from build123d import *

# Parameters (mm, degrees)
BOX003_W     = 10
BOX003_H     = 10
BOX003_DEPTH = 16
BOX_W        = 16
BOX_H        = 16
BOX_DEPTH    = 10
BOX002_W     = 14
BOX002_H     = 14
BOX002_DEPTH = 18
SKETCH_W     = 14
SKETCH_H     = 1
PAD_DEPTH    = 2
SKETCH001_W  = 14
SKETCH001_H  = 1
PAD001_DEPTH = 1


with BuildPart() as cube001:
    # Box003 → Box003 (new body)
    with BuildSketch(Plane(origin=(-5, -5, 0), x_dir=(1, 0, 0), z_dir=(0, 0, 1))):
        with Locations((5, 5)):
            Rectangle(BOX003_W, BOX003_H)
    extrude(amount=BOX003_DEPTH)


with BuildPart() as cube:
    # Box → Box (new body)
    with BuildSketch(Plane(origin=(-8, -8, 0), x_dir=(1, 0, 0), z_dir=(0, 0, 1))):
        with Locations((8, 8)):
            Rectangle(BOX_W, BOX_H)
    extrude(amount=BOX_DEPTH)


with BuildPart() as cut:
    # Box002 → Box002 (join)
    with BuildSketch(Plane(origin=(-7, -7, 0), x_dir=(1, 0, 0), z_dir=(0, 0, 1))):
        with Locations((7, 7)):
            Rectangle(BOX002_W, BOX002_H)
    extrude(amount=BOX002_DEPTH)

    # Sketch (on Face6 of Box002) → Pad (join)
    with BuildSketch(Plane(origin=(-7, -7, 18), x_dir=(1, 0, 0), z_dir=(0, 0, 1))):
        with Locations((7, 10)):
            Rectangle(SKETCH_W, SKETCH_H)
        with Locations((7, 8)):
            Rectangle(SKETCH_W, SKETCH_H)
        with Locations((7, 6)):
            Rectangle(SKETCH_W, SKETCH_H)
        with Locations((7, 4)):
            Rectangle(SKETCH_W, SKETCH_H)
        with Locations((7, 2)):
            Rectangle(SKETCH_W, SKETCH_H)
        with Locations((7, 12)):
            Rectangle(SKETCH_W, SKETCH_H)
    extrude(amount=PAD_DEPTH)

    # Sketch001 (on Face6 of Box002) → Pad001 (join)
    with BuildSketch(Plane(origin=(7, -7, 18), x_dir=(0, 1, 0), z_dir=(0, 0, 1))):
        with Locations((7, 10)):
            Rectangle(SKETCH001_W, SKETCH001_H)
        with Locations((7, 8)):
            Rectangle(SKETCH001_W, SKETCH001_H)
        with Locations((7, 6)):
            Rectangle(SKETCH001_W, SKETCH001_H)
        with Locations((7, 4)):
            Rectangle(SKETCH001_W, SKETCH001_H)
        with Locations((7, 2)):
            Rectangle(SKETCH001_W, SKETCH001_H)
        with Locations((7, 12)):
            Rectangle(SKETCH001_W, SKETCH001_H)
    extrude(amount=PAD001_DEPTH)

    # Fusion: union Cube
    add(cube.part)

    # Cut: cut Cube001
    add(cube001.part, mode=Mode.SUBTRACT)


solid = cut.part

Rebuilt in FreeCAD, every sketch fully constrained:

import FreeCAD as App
import Part
import Sketcher

V = App.Vector


def add_polygon(sketch, points):
    """Adds a closed chain of lines whose ends are joined by coincident constraints."""
    first, n = sketch.GeometryCount, len(points)
    for a, b in zip(points, points[1:] + points[:1]):
        sketch.addGeometry(Part.LineSegment(App.Vector(*a, 0), App.Vector(*b, 0)), False)
    for i in range(n):
        sketch.addConstraint(Sketcher.Constraint("Coincident", first + i, 2, first + (i + 1) % n, 1))

doc = App.newDocument("Part")
params = doc.addObject("Spreadsheet::Sheet", "Params")
for row, (alias, value) in enumerate([
    ("sketch1_width", "10 mm"),
    ("pad1_length", "16 mm"),
    ("sketch2_width", "16 mm"),
    ("pad2_length", "10 mm"),
    ("sketch3_width", "14 mm"),
    ("pad3_length", "18 mm"),
    ("sketch4_width", "14 mm"),
    ("sketch4_height", "1 mm"),
    ("pad4_length", "2 mm"),
    ("sketch5_width", "1 mm"),
    ("sketch5_height", "14 mm"),
    ("pad5_length", "1 mm"),
], start=1):
    params.set(f"A{row}", alias)
    params.set(f"B{row}", "=" + value)
    params.setAlias(f"B{row}", alias)

body = doc.addObject("PartDesign::Body", "Body")

# Sketch on XY plane
sketch1 = body.newObject("Sketcher::SketchObject", "Sketch")
sketch1.AttachmentSupport = (doc.getObject("XY_Plane"), [""])
sketch1.MapMode = "FlatFace"
add_polygon(sketch1, [(-5, 5), (-5, -5), (5, -5), (5, 5)])  # lines 0-3
sketch1.addConstraint(Sketcher.Constraint("Vertical", 0))
sketch1.addConstraint(Sketcher.Constraint("Horizontal", 1))
sketch1.addConstraint(Sketcher.Constraint("Vertical", 2))
sketch1.addConstraint(Sketcher.Constraint("Horizontal", 3))
sketch1.addConstraint(Sketcher.Constraint("Symmetric", 0, 2, 2, 2, -1, 1))
sketch1.addConstraint(Sketcher.Constraint("Equal", 3, 0))
sketch1.addConstraint(Sketcher.Constraint("DistanceX", 1, 1, 1, 2, 10.0))
sketch1.setExpression("Constraints[10]", "Params.sketch1_width")
pad1 = body.newObject("PartDesign::Pad", "Pad")
pad1.Profile = sketch1
pad1.setExpression("Length", "Params.pad1_length")
body2 = doc.addObject("PartDesign::Body", "Body001")

# Sketch on XY plane
sketch2 = body2.newObject("Sketcher::SketchObject", "Sketch001")
sketch2.AttachmentSupport = (doc.getObject("XY_Plane001"), [""])
sketch2.MapMode = "FlatFace"
add_polygon(sketch2, [(-8, 8), (-8, -8), (8, -8), (8, 8)])  # lines 0-3
sketch2.addConstraint(Sketcher.Constraint("Vertical", 0))
sketch2.addConstraint(Sketcher.Constraint("Horizontal", 1))
sketch2.addConstraint(Sketcher.Constraint("Vertical", 2))
sketch2.addConstraint(Sketcher.Constraint("Horizontal", 3))
sketch2.addConstraint(Sketcher.Constraint("Symmetric", 0, 2, 2, 2, -1, 1))
sketch2.addConstraint(Sketcher.Constraint("Equal", 3, 0))
sketch2.addConstraint(Sketcher.Constraint("DistanceX", 1, 1, 1, 2, 16.0))
sketch2.setExpression("Constraints[10]", "Params.sketch2_width")
pad2 = body2.newObject("PartDesign::Pad", "Pad001")
pad2.Profile = sketch2
pad2.setExpression("Length", "Params.pad2_length")
body3 = doc.addObject("PartDesign::Body", "Body002")

# Sketch on XY plane
sketch3 = body3.newObject("Sketcher::SketchObject", "Sketch002")
sketch3.AttachmentSupport = (doc.getObject("XY_Plane002"), [""])
sketch3.MapMode = "FlatFace"
add_polygon(sketch3, [(-7, 7), (-7, -7), (7, -7), (7, 7)])  # lines 0-3
sketch3.addConstraint(Sketcher.Constraint("Vertical", 0))
sketch3.addConstraint(Sketcher.Constraint("Horizontal", 1))
sketch3.addConstraint(Sketcher.Constraint("Vertical", 2))
sketch3.addConstraint(Sketcher.Constraint("Horizontal", 3))
sketch3.addConstraint(Sketcher.Constraint("Symmetric", 0, 2, 2, 2, -1, 1))
sketch3.addConstraint(Sketcher.Constraint("Equal", 3, 0))
sketch3.addConstraint(Sketcher.Constraint("DistanceX", 1, 1, 1, 2, 14.0))
sketch3.setExpression("Constraints[10]", "Params.sketch3_width")
pad3 = body3.newObject("PartDesign::Pad", "Pad002")
pad3.Profile = sketch3
pad3.setExpression("Length", "Params.pad3_length")

# Sketch on XY plane
sketch4 = body3.newObject("Sketcher::SketchObject", "Sketch003")
sketch4.AttachmentSupport = (doc.getObject("XY_Plane002"), [""])
sketch4.MapMode = "FlatFace"
sketch4.AttachmentOffset = App.Placement(V(0, 0, 18), App.Rotation())
add_polygon(sketch4, [(-7, 3.5), (-7, 2.5), (7, 2.5), (7, 3.5)])  # lines 0-3
add_polygon(sketch4, [(-7, 1.5), (-7, 0.5), (7, 0.5), (7, 1.5)])  # lines 4-7
add_polygon(sketch4, [(-7, -0.5), (-7, -1.5), (7, -1.5), (7, -0.5)])  # lines 8-11
add_polygon(sketch4, [(-7, -2.5), (-7, -3.5), (7, -3.5), (7, -2.5)])  # lines 12-15
add_polygon(sketch4, [(-7, -4.5), (-7, -5.5), (7, -5.5), (7, -4.5)])  # lines 16-19
add_polygon(sketch4, [(-7, 5.5), (-7, 4.5), (7, 4.5), (7, 5.5)])  # lines 20-23
sketch4.addConstraint(Sketcher.Constraint("Vertical", 0))
sketch4.addConstraint(Sketcher.Constraint("Horizontal", 1))
sketch4.addConstraint(Sketcher.Constraint("Vertical", 2))
sketch4.addConstraint(Sketcher.Constraint("Horizontal", 3))
sketch4.addConstraint(Sketcher.Constraint("Vertical", 4))
sketch4.addConstraint(Sketcher.Constraint("Horizontal", 5))
sketch4.addConstraint(Sketcher.Constraint("Vertical", 6))
sketch4.addConstraint(Sketcher.Constraint("Horizontal", 7))
sketch4.addConstraint(Sketcher.Constraint("Vertical", 8))
sketch4.addConstraint(Sketcher.Constraint("Horizontal", 9))
sketch4.addConstraint(Sketcher.Constraint("Vertical", 10))
sketch4.addConstraint(Sketcher.Constraint("Horizontal", 11))
sketch4.addConstraint(Sketcher.Constraint("Vertical", 12))
sketch4.addConstraint(Sketcher.Constraint("Horizontal", 13))
sketch4.addConstraint(Sketcher.Constraint("Vertical", 14))
sketch4.addConstraint(Sketcher.Constraint("Horizontal", 15))
sketch4.addConstraint(Sketcher.Constraint("Vertical", 16))
sketch4.addConstraint(Sketcher.Constraint("Horizontal", 17))
sketch4.addConstraint(Sketcher.Constraint("Vertical", 18))
sketch4.addConstraint(Sketcher.Constraint("Horizontal", 19))
sketch4.addConstraint(Sketcher.Constraint("Vertical", 20))
sketch4.addConstraint(Sketcher.Constraint("Horizontal", 21))
sketch4.addConstraint(Sketcher.Constraint("Vertical", 22))
sketch4.addConstraint(Sketcher.Constraint("Horizontal", 23))
sketch4.addConstraint(Sketcher.Constraint("Symmetric", 6, 2, 8, 2, -1, 1))
sketch4.addConstraint(Sketcher.Constraint("Symmetric", 4, 2, 10, 2, -1, 1))
sketch4.addConstraint(Sketcher.Constraint("Symmetric", 2, 2, 12, 2, -1, 1))
sketch4.addConstraint(Sketcher.Constraint("Symmetric", 0, 2, 14, 2, -1, 1))
sketch4.addConstraint(Sketcher.Constraint("Symmetric", 18, 2, 20, 2, -1, 1))
sketch4.addConstraint(Sketcher.Constraint("Symmetric", 16, 2, 22, 2, -1, 1))
sketch4.addConstraint(Sketcher.Constraint("Vertical", 3, 2, 4, 2))
sketch4.addConstraint(Sketcher.Constraint("Vertical", 2, 2, 5, 2))
sketch4.addConstraint(Sketcher.Constraint("Vertical", 7, 2, 8, 2))
sketch4.addConstraint(Sketcher.Constraint("Vertical", 15, 2, 16, 2))
sketch4.addConstraint(Sketcher.Constraint("Vertical", 14, 2, 17, 2))
sketch4.addConstraint(Sketcher.Constraint("Equal", 2, 4))
sketch4.addConstraint(Sketcher.Constraint("Equal", 14, 16))
sketch4.addConstraint(Sketcher.Constraint("DistanceX", 1, 1, 1, 2, 14.0))
sketch4.addConstraint(Sketcher.Constraint("DistanceY", 0, 2, 0, 1, 1.0))
sketch4.addConstraint(Sketcher.Constraint("DistanceY", 4, 2, 0, 2, 2.0))
sketch4.addConstraint(Sketcher.Constraint("DistanceY", 8, 2, 4, 2, 2.0))
sketch4.addConstraint(Sketcher.Constraint("DistanceY", 16, 2, 12, 2, 2.0))
sketch4.setExpression("Constraints[61]", "Params.sketch4_width")
sketch4.setExpression("Constraints[62]", "Params.sketch4_height")
pad4 = body3.newObject("PartDesign::Pad", "Pad003")
pad4.Profile = sketch4
pad4.setExpression("Length", "Params.pad4_length")

# Sketch on XY plane
sketch5 = body3.newObject("Sketcher::SketchObject", "Sketch004")
sketch5.AttachmentSupport = (doc.getObject("XY_Plane002"), [""])
sketch5.MapMode = "FlatFace"
sketch5.AttachmentOffset = App.Placement(V(0, 0, 18), App.Rotation())
add_polygon(sketch5, [(-3.5, -7), (-2.5, -7), (-2.5, 7), (-3.5, 7)])  # lines 0-3
add_polygon(sketch5, [(-1.5, -7), (-0.5, -7), (-0.5, 7), (-1.5, 7)])  # lines 4-7
add_polygon(sketch5, [(0.5, -7), (1.5, -7), (1.5, 7), (0.5, 7)])  # lines 8-11
add_polygon(sketch5, [(2.5, -7), (3.5, -7), (3.5, 7), (2.5, 7)])  # lines 12-15
add_polygon(sketch5, [(4.5, -7), (5.5, -7), (5.5, 7), (4.5, 7)])  # lines 16-19
add_polygon(sketch5, [(-5.5, -7), (-4.5, -7), (-4.5, 7), (-5.5, 7)])  # lines 20-23
sketch5.addConstraint(Sketcher.Constraint("Horizontal", 0))
sketch5.addConstraint(Sketcher.Constraint("Vertical", 1))
sketch5.addConstraint(Sketcher.Constraint("Horizontal", 2))
sketch5.addConstraint(Sketcher.Constraint("Vertical", 3))
sketch5.addConstraint(Sketcher.Constraint("Horizontal", 4))
sketch5.addConstraint(Sketcher.Constraint("Vertical", 5))
sketch5.addConstraint(Sketcher.Constraint("Horizontal", 6))
sketch5.addConstraint(Sketcher.Constraint("Vertical", 7))
sketch5.addConstraint(Sketcher.Constraint("Horizontal", 8))
sketch5.addConstraint(Sketcher.Constraint("Vertical", 9))
sketch5.addConstraint(Sketcher.Constraint("Horizontal", 10))
sketch5.addConstraint(Sketcher.Constraint("Vertical", 11))
sketch5.addConstraint(Sketcher.Constraint("Horizontal", 12))
sketch5.addConstraint(Sketcher.Constraint("Vertical", 13))
sketch5.addConstraint(Sketcher.Constraint("Horizontal", 14))
sketch5.addConstraint(Sketcher.Constraint("Vertical", 15))
sketch5.addConstraint(Sketcher.Constraint("Horizontal", 16))
sketch5.addConstraint(Sketcher.Constraint("Vertical", 17))
sketch5.addConstraint(Sketcher.Constraint("Horizontal", 18))
sketch5.addConstraint(Sketcher.Constraint("Vertical", 19))
sketch5.addConstraint(Sketcher.Constraint("Horizontal", 20))
sketch5.addConstraint(Sketcher.Constraint("Vertical", 21))
sketch5.addConstraint(Sketcher.Constraint("Horizontal", 22))
sketch5.addConstraint(Sketcher.Constraint("Vertical", 23))
sketch5.addConstraint(Sketcher.Constraint("Symmetric", 6, 2, 8, 2, -1, 1))
sketch5.addConstraint(Sketcher.Constraint("Symmetric", 4, 2, 10, 2, -1, 1))
sketch5.addConstraint(Sketcher.Constraint("Symmetric", 2, 2, 12, 2, -1, 1))
sketch5.addConstraint(Sketcher.Constraint("Symmetric", 0, 2, 14, 2, -1, 1))
sketch5.addConstraint(Sketcher.Constraint("Symmetric", 18, 2, 20, 2, -1, 1))
sketch5.addConstraint(Sketcher.Constraint("Symmetric", 16, 2, 22, 2, -1, 1))
sketch5.addConstraint(Sketcher.Constraint("Horizontal", 3, 2, 4, 2))
sketch5.addConstraint(Sketcher.Constraint("Horizontal", 2, 2, 5, 2))
sketch5.addConstraint(Sketcher.Constraint("Horizontal", 7, 2, 8, 2))
sketch5.addConstraint(Sketcher.Constraint("Horizontal", 15, 2, 16, 2))
sketch5.addConstraint(Sketcher.Constraint("Horizontal", 14, 2, 17, 2))
sketch5.addConstraint(Sketcher.Constraint("Equal", 2, 4))
sketch5.addConstraint(Sketcher.Constraint("Equal", 14, 16))
sketch5.addConstraint(Sketcher.Constraint("DistanceX", 0, 1, 0, 2, 1.0))
sketch5.addConstraint(Sketcher.Constraint("DistanceY", 1, 1, 1, 2, 14.0))
sketch5.addConstraint(Sketcher.Constraint("DistanceX", 0, 2, 4, 2, 2.0))
sketch5.addConstraint(Sketcher.Constraint("DistanceX", 4, 2, 8, 2, 2.0))
sketch5.addConstraint(Sketcher.Constraint("DistanceX", 12, 2, 16, 2, 2.0))
sketch5.setExpression("Constraints[61]", "Params.sketch5_width")
sketch5.setExpression("Constraints[62]", "Params.sketch5_height")
pad5 = body3.newObject("PartDesign::Pad", "Pad004")
pad5.Profile = sketch5
pad5.setExpression("Length", "Params.pad5_length")
doc.recompute()

boolean = body3.newObject("PartDesign::Boolean", "Boolean")
boolean.Type = "Fuse"
boolean.addObjects([body2])
doc.recompute()

boolean2 = body3.newObject("PartDesign::Boolean", "Boolean001")
boolean2.Type = "Cut"
boolean2.addObjects([body])

doc.recompute()
